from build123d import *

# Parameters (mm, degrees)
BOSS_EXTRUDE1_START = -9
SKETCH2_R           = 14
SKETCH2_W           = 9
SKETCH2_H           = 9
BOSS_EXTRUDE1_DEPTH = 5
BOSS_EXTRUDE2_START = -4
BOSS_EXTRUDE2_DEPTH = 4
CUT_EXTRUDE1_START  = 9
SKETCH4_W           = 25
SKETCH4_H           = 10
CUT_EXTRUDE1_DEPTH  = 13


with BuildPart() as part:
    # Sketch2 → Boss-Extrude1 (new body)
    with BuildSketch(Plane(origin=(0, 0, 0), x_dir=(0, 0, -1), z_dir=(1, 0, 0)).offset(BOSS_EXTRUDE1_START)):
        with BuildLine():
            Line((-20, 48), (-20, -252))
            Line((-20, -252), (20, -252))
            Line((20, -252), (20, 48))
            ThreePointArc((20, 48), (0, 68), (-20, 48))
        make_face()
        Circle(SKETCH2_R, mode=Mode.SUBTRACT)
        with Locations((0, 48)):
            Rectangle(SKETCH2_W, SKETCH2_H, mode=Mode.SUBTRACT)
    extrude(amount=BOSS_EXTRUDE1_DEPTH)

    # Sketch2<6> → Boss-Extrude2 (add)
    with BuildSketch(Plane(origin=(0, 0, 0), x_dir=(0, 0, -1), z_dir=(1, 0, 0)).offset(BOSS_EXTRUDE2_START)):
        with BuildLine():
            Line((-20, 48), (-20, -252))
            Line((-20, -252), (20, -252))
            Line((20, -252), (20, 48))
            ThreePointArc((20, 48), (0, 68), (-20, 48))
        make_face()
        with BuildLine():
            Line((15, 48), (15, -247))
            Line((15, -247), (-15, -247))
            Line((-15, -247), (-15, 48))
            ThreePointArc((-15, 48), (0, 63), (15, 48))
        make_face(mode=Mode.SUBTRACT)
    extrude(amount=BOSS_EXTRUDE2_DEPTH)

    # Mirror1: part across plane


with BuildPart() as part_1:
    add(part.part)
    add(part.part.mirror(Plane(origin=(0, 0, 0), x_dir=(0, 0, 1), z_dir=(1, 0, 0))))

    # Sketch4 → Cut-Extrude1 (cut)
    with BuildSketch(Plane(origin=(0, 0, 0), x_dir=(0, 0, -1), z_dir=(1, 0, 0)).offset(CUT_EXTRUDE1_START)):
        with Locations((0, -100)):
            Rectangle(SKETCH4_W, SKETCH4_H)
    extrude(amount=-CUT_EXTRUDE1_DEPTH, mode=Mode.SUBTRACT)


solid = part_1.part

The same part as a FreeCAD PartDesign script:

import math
import FreeCAD as App
import Part
import Sketcher
from FreeCAD import Vector


def add_polygon(sketch, points):
    """Adds a closed chain of lines whose ends are joined by coincident constraints."""
    first, n = sketch.GeometryCount, len(points)
    for a, b in zip(points, points[1:] + points[:1]):
        sketch.addGeometry(Part.LineSegment(App.Vector(*a, 0), App.Vector(*b, 0)), False)
    for i in range(n):
        sketch.addConstraint(Sketcher.Constraint("Coincident", first + i, 2, first + (i + 1) % n, 1))

doc = App.newDocument("Part")
params = doc.addObject("Spreadsheet::Sheet", "Params")
for row, (alias, value) in enumerate([
    ("sketch1_diameter", "28 mm"),
    ("sketch1_radius", "20 mm"),
    ("sketch1_width", "300 mm"),
    ("sketch1_width2", "9 mm"),
    ("pad1_length", "5 mm"),
    ("sketch2_radius", "20 mm"),
    ("sketch2_radius2", "15 mm"),
    ("sketch2_width", "300 mm"),
    ("sketch2_width2", "295 mm"),
    ("pad2_length", "4 mm"),
    ("sketch3_width", "10 mm"),
    ("sketch3_height", "25 mm"),
    ("pocket1_length", "13 mm"),
], start=1):
    params.set(f"A{row}", alias)
    params.set(f"B{row}", "=" + value)
    params.setAlias(f"B{row}", alias)

body = doc.addObject("PartDesign::Body", "Body")

sketch1 = body.newObject("Sketcher::SketchObject", "Sketch")
sketch1.AttachmentSupport = (doc.getObject("YZ_Plane"), [""])
sketch1.MapMode = "FlatFace"
sketch1.AttachmentOffset = App.Placement(Vector(0, 0, -9), App.Rotation())
sketch1.addGeometry(Part.LineSegment(Vector(48, 20, 0), Vector(-252, 20, 0)), False)
sketch1.addGeometry(Part.LineSegment(Vector(-252, 20, 0), Vector(-252, -20, 0)), False)
sketch1.addGeometry(Part.LineSegment(Vector(-252, -20, 0), Vector(48, -20, 0)), False)
sketch1.addGeometry(Part.ArcOfCircle(Part.Circle(Vector(48, 0, 0), Vector(0, 0, 1), 20), math.radians(-90), math.radians(90)), False)
sketch1.addGeometry(Part.Circle(Vector(0, 0, 0), Vector(0, 0, 1), 14), False)
add_polygon(sketch1, [(43.5, -4.5), (43.5, 4.5), (52.5, 4.5), (52.5, -4.5)])
sketch1.addConstraint([
    Sketcher.Constraint("Coincident", 0, 2, 1, 1),
    Sketcher.Constraint("Coincident", 1, 2, 2, 1),
    Sketcher.Constraint("Tangent", 2, 2, 3, 1),
    Sketcher.Constraint("Tangent", 3, 2, 0, 1),
    Sketcher.Constraint("Horizontal", 0),
    Sketcher.Constraint("Vertical", 1),
    Sketcher.Constraint("Horizontal", 2),
    Sketcher.Constraint("Vertical", 5),
    Sketcher.Constraint("Horizontal", 6),
    Sketcher.Constraint("Vertical", 7),
    Sketcher.Constraint("Horizontal", 8),
    Sketcher.Constraint("Coincident", 4, 3, -1, 1),
    Sketcher.Constraint("PointOnObject", 3, 3, -1),
    Sketcher.Constraint("Equal", 8, 5),
    Sketcher.Constraint("Diameter", 4, 28.0),
    Sketcher.Constraint("Radius", 3, 20.0),
    Sketcher.Constraint("DistanceX", 0, 2, 0, 1, 300.0),
    Sketcher.Constraint("DistanceX", 6, 1, 6, 2, 9.0),
    Sketcher.Constraint("DistanceX", -1, 1, 3, 3, 48.0),
    Sketcher.Constraint("DistanceX", -1, 1, 5, 2, 43.5),
    Sketcher.Constraint("DistanceY", -1, 1, 5, 2, 4.5),
])
sketch1.setExpression("Constraints[18]", "Params.sketch1_diameter")
sketch1.setExpression("Constraints[19]", "Params.sketch1_radius")
sketch1.setExpression("Constraints[20]", "Params.sketch1_width")
sketch1.setExpression("Constraints[21]", "Params.sketch1_width2")
pad1 = body.newObject("PartDesign::Pad", "Pad")
pad1.Profile = sketch1
pad1.setExpression("Length", "Params.pad1_length")

sketch2 = body.newObject("Sketcher::SketchObject", "Sketch001")
sketch2.AttachmentSupport = (doc.getObject("YZ_Plane"), [""])
sketch2.MapMode = "FlatFace"
sketch2.AttachmentOffset = App.Placement(Vector(0, 0, -4), App.Rotation())
sketch2.addGeometry([
    Part.LineSegment(Vector(48, 20, 0), Vector(-252, 20, 0)),
    Part.LineSegment(Vector(-252, 20, 0), Vector(-252, -20, 0)),
    Part.LineSegment(Vector(-252, -20, 0), Vector(48, -20, 0)),
    Part.ArcOfCircle(Part.Circle(Vector(48, 0, 0), Vector(0, 0, 1), 20), math.radians(-90), math.radians(90)),
    Part.ArcOfCircle(Part.Circle(Vector(48, 0, 0), Vector(0, 0, 1), 15), math.radians(-90), math.radians(90)),
    Part.LineSegment(Vector(48, -15, 0), Vector(-247, -15, 0)),
    Part.LineSegment(Vector(-247, -15, 0), Vector(-247, 15, 0)),
    Part.LineSegment(Vector(-247, 15, 0), Vector(48, 15, 0)),
], False)
sketch2.addConstraint([
    Sketcher.Constraint("Coincident", 0, 2, 1, 1),
    Sketcher.Constraint("Coincident", 1, 2, 2, 1),
    Sketcher.Constraint("Tangent", 2, 2, 3, 1),
    Sketcher.Constraint("Tangent", 3, 2, 0, 1),
    Sketcher.Constraint("Tangent", 4, 1, 5, 1),
    Sketcher.Constraint("Coincident", 5, 2, 6, 1),
    Sketcher.Constraint("Coincident", 6, 2, 7, 1),
    Sketcher.Constraint("Tangent", 7, 2, 4, 2),
    Sketcher.Constraint("Horizontal", 0),
    Sketcher.Constraint("Vertical", 1),
    Sketcher.Constraint("Horizontal", 2),
    Sketcher.Constraint("Horizontal", 5),
    Sketcher.Constraint("Vertical", 6),
    Sketcher.Constraint("Horizontal", 7),
    Sketcher.Constraint("Coincident", 4, 3, 3, 3),
    Sketcher.Constraint("PointOnObject", 3, 3, -1),
    Sketcher.Constraint("Radius", 3, 20.0),
    Sketcher.Constraint("Radius", 4, 15.0),
    Sketcher.Constraint("DistanceX", 0, 2, 0, 1, 300.0),
    Sketcher.Constraint("DistanceX", 5, 2, 5, 1, 295.0),
    Sketcher.Constraint("DistanceX", -1, 1, 3, 3, 48.0),
])
sketch2.setExpression("Constraints[16]", "Params.sketch2_radius")
sketch2.setExpression("Constraints[17]", "Params.sketch2_radius2")
sketch2.setExpression("Constraints[18]", "Params.sketch2_width")
sketch2.setExpression("Constraints[19]", "Params.sketch2_width2")
pad2 = body.newObject("PartDesign::Pad", "Pad001")
pad2.Profile = sketch2
pad2.setExpression("Length", "Params.pad2_length")
body2 = doc.addObject("PartDesign::Body", "Body001")
doc.recompute()

body2.BaseFeature = body
doc.recompute()

mirroring = doc.addObject("Part::Mirroring", "Mirroring")
mirroring.Source = body
mirroring.Base = Vector(0, 0, 0)
mirroring.Normal = Vector(1, 0, 0)
body3 = doc.addObject("PartDesign::Body", "Body002")
body3.BaseFeature = mirroring
boolean = body2.newObject("PartDesign::Boolean", "Boolean")
boolean.Type = "Fuse"
boolean.addObjects([body3])
doc.recompute()

sketch3 = body2.newObject("Sketcher::SketchObject", "Sketch002")
sketch3.AttachmentSupport = (doc.getObject("YZ_Plane001"), [""])
sketch3.MapMode = "FlatFace"
sketch3.AttachmentOffset = App.Placement(Vector(0, 0, 9), App.Rotation())
add_polygon(sketch3, [(-95, 12.5), (-105, 12.5), (-105, -12.5), (-95, -12.5)])
sketch3.addConstraint([
    Sketcher.Constraint("Horizontal", 0),
    Sketcher.Constraint("Vertical", 1),
    Sketcher.Constraint("Horizontal", 2),
    Sketcher.Constraint("Vertical", 3),
    Sketcher.Constraint("DistanceX", 0, 2, 0, 1, 10.0),
    Sketcher.Constraint("DistanceY", 1, 2, 1, 1, 25.0),
    Sketcher.Constraint("DistanceX", 0, 2, -1, 1, 105.0),
    Sketcher.Constraint("DistanceY", -1, 1, 0, 2, 12.5),
])
sketch3.setExpression("Constraints[8]", "Params.sketch3_width")
sketch3.setExpression("Constraints[9]", "Params.sketch3_height")
pocket1 = body2.newObject("PartDesign::Pocket", "Pocket")
pocket1.Profile = sketch3
pocket1.setExpression("Length", "Params.pocket1_length")
mirroring.Visibility = False

doc.recompute()
